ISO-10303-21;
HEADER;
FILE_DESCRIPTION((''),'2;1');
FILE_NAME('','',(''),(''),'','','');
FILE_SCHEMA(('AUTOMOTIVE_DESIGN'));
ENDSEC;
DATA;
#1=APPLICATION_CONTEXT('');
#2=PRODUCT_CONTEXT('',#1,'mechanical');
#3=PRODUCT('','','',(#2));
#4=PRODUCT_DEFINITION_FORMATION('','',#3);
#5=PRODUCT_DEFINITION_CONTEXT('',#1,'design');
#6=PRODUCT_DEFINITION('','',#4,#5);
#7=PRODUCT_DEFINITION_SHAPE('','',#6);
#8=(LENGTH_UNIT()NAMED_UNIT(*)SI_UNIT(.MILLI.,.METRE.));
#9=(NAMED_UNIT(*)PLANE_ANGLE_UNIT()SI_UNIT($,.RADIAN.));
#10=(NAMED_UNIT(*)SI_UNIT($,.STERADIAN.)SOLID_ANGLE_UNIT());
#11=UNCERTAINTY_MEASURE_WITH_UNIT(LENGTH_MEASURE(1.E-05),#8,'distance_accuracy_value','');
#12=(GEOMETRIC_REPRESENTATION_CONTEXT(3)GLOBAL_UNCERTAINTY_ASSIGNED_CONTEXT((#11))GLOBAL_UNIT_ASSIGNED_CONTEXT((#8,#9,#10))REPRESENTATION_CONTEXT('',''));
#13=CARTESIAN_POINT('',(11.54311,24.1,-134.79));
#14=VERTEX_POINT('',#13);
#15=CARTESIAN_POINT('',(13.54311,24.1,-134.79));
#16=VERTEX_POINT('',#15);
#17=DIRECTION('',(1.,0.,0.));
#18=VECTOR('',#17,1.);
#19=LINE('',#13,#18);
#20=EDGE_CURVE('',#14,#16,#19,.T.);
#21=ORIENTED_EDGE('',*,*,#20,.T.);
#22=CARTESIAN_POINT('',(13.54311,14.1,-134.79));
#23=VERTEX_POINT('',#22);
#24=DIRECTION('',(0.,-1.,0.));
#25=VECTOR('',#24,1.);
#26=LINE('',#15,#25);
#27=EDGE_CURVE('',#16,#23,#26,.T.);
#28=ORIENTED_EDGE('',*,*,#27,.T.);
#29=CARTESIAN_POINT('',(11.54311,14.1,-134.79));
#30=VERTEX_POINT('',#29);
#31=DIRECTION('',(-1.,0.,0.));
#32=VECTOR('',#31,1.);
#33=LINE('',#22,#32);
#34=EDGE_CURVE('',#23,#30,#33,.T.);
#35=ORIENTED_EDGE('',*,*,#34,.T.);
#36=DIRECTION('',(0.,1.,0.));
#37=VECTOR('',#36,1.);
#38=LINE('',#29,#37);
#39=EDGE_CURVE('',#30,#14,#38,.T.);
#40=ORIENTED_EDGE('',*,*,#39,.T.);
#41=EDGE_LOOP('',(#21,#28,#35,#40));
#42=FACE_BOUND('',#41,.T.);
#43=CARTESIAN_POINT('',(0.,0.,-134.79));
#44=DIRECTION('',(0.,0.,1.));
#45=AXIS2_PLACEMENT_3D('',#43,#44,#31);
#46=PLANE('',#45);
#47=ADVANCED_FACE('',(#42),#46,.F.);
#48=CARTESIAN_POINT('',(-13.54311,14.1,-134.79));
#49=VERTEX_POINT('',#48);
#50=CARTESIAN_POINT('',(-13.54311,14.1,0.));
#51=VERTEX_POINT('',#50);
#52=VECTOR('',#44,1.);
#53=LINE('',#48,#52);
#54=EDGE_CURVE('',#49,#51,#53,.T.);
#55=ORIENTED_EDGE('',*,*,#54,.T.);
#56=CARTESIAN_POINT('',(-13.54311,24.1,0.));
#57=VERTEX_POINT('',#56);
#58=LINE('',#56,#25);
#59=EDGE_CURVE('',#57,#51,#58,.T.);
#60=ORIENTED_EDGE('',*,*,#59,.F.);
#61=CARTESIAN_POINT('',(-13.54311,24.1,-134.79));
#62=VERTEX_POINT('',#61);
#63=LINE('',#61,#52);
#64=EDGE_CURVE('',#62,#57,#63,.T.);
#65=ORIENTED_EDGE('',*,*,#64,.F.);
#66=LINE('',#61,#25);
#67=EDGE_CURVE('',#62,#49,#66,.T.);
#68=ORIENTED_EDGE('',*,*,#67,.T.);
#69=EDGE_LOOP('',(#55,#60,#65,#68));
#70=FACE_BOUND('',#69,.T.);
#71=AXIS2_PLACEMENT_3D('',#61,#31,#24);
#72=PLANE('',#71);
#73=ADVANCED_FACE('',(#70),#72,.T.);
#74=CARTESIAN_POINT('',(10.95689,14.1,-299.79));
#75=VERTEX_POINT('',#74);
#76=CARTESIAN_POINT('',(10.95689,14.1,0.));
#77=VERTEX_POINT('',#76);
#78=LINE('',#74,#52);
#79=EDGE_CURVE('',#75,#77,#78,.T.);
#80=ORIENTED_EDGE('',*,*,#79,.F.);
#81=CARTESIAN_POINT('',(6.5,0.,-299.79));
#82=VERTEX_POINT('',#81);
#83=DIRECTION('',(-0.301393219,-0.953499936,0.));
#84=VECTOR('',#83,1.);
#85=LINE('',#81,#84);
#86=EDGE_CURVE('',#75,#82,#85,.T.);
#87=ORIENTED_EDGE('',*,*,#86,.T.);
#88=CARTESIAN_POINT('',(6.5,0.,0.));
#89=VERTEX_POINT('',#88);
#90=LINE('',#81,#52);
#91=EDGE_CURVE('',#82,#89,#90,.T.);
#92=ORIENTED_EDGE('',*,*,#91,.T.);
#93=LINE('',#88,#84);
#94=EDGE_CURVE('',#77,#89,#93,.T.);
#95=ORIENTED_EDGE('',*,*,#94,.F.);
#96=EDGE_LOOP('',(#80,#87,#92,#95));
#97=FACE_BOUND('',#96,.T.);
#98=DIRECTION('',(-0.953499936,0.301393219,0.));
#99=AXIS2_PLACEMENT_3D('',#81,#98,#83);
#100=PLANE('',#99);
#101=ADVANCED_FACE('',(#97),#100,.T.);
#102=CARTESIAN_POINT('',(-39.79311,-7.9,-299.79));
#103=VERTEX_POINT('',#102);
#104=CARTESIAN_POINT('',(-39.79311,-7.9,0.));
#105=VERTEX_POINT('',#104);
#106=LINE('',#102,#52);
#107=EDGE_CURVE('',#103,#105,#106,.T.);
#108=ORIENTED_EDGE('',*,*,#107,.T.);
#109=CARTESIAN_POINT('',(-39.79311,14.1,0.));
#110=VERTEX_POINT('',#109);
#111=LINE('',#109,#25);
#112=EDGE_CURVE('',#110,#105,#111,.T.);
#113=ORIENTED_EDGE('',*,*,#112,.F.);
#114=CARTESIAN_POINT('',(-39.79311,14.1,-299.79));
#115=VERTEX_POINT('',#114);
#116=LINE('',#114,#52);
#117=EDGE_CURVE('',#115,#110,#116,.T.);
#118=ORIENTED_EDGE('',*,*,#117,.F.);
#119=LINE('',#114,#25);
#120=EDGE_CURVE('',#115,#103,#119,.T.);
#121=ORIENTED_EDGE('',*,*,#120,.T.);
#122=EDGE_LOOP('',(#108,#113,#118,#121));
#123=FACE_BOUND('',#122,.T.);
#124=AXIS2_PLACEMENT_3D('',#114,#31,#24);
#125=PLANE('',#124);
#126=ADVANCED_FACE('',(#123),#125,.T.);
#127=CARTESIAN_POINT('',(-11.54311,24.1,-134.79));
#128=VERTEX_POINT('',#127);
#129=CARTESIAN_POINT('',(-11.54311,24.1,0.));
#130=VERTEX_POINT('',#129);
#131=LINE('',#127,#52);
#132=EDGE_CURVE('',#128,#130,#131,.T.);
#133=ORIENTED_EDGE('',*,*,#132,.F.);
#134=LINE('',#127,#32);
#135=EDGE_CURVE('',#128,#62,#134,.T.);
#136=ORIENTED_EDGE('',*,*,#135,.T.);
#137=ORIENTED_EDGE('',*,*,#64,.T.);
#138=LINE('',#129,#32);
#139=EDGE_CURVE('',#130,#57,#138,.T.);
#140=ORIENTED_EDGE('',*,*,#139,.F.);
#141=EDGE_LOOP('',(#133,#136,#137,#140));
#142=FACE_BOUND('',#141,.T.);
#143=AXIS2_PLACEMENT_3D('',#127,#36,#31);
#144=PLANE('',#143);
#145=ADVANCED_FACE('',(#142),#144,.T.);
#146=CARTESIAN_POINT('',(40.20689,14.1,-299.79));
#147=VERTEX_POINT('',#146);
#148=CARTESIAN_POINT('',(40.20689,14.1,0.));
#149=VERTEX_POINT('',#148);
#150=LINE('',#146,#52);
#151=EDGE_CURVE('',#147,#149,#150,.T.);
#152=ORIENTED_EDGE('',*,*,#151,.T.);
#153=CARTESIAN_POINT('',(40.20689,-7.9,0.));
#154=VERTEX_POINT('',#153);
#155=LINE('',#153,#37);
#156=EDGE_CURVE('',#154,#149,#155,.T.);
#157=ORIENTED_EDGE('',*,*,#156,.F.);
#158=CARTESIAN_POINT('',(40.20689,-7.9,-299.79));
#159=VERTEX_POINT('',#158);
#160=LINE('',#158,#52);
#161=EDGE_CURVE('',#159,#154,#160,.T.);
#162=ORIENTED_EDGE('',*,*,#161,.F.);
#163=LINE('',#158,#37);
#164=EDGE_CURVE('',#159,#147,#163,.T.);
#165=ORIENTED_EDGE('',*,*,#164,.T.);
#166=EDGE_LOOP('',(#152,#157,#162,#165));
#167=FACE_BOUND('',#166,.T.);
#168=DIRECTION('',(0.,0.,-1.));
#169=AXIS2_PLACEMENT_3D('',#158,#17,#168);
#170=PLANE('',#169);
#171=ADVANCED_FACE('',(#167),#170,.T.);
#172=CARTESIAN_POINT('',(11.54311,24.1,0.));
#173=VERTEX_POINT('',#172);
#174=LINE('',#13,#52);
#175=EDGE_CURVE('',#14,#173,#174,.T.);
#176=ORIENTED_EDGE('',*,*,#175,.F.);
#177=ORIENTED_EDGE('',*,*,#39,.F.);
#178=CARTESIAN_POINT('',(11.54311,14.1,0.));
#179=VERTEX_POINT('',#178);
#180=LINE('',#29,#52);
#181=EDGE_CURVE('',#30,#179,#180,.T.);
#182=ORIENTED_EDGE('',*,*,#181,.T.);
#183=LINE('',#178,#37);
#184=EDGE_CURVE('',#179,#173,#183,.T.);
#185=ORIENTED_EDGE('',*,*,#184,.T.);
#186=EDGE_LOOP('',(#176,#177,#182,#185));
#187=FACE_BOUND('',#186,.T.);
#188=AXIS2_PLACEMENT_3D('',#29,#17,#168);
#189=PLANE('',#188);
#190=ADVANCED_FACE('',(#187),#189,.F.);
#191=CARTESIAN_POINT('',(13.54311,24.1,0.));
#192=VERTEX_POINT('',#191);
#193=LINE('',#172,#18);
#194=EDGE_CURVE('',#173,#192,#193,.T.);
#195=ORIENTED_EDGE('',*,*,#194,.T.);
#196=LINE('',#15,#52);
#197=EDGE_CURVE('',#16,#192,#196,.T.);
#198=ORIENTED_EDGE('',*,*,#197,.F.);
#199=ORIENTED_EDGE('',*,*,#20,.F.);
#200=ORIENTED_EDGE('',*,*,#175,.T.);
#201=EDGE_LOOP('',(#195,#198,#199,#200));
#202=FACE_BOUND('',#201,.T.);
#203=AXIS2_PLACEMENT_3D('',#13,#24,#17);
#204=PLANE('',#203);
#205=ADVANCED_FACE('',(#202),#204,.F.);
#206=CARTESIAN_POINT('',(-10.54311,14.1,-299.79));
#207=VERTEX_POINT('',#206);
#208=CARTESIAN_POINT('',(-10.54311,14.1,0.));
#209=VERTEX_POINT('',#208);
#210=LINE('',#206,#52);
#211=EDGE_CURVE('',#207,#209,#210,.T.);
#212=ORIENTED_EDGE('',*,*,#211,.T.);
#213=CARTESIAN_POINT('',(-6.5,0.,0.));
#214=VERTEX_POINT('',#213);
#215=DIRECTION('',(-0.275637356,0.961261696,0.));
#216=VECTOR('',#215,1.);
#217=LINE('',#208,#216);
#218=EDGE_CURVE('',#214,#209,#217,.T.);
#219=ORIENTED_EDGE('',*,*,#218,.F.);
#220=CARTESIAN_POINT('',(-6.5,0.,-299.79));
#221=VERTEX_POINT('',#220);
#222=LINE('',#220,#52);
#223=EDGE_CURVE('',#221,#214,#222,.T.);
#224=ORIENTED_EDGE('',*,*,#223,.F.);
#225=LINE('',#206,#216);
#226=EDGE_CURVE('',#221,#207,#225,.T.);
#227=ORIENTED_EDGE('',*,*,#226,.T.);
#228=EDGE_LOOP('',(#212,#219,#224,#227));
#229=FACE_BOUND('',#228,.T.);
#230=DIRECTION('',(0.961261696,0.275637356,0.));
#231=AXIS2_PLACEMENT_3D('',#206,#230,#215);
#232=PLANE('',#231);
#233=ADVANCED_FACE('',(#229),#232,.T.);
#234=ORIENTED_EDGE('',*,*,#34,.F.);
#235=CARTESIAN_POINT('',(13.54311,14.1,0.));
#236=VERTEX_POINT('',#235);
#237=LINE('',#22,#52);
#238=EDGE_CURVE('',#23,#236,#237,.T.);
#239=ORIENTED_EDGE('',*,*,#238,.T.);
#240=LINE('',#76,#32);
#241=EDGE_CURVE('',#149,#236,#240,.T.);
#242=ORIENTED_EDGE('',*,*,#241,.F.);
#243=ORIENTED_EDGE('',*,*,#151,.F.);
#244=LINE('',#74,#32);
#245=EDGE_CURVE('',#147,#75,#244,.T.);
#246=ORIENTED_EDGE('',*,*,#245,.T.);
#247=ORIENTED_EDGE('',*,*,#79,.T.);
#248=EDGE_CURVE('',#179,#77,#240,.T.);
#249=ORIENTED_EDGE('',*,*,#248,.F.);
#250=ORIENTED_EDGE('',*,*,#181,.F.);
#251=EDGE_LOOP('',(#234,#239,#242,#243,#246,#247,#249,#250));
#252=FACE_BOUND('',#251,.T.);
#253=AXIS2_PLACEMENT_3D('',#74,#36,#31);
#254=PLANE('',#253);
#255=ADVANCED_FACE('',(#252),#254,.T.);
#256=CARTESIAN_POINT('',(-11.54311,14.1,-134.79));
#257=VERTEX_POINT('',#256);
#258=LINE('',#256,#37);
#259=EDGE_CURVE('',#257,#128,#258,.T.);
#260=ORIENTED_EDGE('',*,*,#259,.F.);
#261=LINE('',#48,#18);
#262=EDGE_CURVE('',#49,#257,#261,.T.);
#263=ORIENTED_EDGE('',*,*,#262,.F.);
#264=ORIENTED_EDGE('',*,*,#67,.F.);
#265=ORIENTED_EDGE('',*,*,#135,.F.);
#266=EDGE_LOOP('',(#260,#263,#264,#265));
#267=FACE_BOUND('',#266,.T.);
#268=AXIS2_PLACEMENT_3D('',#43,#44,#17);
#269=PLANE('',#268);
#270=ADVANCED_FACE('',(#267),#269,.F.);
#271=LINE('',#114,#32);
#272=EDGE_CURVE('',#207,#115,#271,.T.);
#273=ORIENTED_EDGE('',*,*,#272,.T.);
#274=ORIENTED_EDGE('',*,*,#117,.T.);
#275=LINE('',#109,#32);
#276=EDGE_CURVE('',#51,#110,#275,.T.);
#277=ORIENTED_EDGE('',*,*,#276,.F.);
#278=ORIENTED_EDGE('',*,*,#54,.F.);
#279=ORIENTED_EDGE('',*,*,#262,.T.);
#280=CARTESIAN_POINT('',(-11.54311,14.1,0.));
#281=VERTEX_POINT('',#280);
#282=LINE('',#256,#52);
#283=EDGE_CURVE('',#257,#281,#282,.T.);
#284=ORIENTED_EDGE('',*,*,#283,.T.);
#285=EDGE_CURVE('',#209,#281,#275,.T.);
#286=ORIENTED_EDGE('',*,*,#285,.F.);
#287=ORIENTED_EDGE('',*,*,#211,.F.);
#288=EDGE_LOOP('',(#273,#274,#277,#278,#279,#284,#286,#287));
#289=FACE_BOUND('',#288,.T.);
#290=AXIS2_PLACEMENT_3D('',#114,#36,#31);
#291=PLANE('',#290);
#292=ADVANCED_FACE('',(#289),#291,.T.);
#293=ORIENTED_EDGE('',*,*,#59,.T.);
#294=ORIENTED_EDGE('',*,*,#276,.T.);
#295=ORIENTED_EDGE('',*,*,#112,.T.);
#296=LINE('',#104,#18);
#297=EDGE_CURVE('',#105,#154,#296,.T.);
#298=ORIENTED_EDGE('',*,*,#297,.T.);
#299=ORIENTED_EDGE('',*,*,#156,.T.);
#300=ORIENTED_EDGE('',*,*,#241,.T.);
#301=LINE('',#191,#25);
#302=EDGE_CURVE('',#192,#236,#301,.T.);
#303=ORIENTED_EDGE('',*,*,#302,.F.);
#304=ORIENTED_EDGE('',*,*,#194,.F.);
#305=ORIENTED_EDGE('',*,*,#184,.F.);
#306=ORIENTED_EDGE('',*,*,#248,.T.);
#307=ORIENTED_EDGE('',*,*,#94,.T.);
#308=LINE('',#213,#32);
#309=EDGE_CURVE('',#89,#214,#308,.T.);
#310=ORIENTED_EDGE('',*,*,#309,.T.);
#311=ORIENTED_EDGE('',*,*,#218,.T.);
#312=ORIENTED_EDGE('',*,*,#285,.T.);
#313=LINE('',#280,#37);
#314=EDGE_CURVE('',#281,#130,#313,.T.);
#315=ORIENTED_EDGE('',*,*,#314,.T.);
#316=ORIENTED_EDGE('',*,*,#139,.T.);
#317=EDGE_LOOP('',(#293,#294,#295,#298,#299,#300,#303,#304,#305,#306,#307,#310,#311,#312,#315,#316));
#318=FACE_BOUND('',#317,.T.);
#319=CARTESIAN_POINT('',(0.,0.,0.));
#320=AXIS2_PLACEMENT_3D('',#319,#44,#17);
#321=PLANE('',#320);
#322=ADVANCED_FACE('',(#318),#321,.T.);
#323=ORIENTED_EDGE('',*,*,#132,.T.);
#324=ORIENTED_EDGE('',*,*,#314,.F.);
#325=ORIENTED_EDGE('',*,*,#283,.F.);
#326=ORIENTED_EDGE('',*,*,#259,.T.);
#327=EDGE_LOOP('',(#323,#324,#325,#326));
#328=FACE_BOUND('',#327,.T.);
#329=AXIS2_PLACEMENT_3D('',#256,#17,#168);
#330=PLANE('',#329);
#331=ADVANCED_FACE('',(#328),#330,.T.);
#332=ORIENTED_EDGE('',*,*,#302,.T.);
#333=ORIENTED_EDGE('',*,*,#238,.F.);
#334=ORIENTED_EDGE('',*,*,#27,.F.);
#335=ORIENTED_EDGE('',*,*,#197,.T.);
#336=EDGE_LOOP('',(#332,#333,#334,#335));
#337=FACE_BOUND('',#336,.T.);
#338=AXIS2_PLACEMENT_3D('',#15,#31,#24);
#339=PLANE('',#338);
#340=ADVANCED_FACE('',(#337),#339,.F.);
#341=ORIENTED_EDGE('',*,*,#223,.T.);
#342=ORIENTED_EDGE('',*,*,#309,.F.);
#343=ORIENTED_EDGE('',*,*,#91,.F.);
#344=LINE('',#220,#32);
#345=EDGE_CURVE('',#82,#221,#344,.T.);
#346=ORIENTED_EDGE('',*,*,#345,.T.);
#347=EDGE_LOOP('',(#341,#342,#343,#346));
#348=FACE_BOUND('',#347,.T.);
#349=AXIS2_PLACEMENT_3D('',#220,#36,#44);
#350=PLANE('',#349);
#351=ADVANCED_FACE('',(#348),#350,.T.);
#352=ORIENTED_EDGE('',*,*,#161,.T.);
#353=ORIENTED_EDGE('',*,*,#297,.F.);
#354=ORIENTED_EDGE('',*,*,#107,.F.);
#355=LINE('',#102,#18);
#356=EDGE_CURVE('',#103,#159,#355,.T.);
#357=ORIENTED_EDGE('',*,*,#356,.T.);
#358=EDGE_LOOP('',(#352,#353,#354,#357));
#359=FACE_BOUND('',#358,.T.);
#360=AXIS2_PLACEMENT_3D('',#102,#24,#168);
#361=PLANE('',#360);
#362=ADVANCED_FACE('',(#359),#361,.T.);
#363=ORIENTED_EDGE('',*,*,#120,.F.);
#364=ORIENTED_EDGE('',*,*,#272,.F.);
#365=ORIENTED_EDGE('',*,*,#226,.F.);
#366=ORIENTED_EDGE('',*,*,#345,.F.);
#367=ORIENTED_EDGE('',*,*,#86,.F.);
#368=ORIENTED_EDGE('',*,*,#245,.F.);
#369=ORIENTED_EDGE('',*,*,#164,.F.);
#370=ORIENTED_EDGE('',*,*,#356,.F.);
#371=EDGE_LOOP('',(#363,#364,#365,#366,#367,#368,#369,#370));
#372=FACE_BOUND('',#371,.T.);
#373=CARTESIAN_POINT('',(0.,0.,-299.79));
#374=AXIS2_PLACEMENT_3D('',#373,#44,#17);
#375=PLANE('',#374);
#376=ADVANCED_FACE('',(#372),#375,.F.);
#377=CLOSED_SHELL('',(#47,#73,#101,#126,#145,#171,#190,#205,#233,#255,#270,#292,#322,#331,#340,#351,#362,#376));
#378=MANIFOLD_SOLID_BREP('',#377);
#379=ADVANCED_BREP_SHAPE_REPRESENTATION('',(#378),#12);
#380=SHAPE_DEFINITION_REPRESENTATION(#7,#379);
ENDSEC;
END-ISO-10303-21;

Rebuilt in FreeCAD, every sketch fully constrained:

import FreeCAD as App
import Part
import Sketcher

V = App.Vector
Q = App.Units.Quantity

doc = App.newDocument("Part")
params = doc.addObject("Spreadsheet::Sheet", "Params")
for row, (alias, value) in enumerate([
    ("sketch1_width", "13 mm"),
    ("sketch1_width2", "80 mm"),
    ("sketch1_height", "22 mm"),
    ("sketch1_width3", "29.25 mm"),
    ("pad1_length", "299.79 mm"),
    ("sketch2_width", "2 mm"),
    ("sketch2_height", "10 mm"),
    ("pad2_length", "134.79 mm"),
], start=1):
    params.set(f"A{row}", alias)
    params.set(f"B{row}", "=" + value)
    params.setAlias(f"B{row}", alias)

body = doc.addObject("PartDesign::Body", "Body")

# Sketch on XY plane
sketch1 = doc.addObject("Sketcher::SketchObject", "Sketch")
body.addObject(sketch1)
sketch1.AttachmentSupport = (doc.XY_Plane, [""])
sketch1.MapMode = "FlatFace"
sketch1.addGeometry(Part.LineSegment(V(6, 0, 0), V(-6, 0, 0)), False)
sketch1.addGeometry(Part.LineSegment(V(-6, 0, 0), V(-11, 14, 0)), False)
sketch1.addGeometry(Part.LineSegment(V(-11, 14, 0), V(-40, 14, 0)), False)
sketch1.addGeometry(Part.LineSegment(V(-40, 14, 0), V(-40, -8, 0)), False)
sketch1.addGeometry(Part.LineSegment(V(-40, -8, 0), V(40, -8, 0)), False)
sketch1.addGeometry(Part.LineSegment(V(40, -8, 0), V(40, 14, 0)), False)
sketch1.addGeometry(Part.LineSegment(V(40, 14, 0), V(11, 14, 0)), False)
sketch1.addGeometry(Part.LineSegment(V(11, 14, 0), V(6, 0, 0)), False)
sketch1.addConstraint(Sketcher.Constraint("Coincident", 0, 2, 1, 1))
sketch1.addConstraint(Sketcher.Constraint("Coincident", 1, 2, 2, 1))
sketch1.addConstraint(Sketcher.Constraint("Coincident", 2, 2, 3, 1))
sketch1.addConstraint(Sketcher.Constraint("Coincident", 3, 2, 4, 1))
sketch1.addConstraint(Sketcher.Constraint("Coincident", 4, 2, 5, 1))
sketch1.addConstraint(Sketcher.Constraint("Coincident", 5, 2, 6, 1))
sketch1.addConstraint(Sketcher.Constraint("Coincident", 6, 2, 7, 1))
sketch1.addConstraint(Sketcher.Constraint("Coincident", 7, 2, 0, 1))
sketch1.addConstraint(Sketcher.Constraint("Horizontal", 0))
sketch1.addConstraint(Sketcher.Constraint("Horizontal", 2))
sketch1.addConstraint(Sketcher.Constraint("Vertical", 3))
sketch1.addConstraint(Sketcher.Constraint("Horizontal", 4))
sketch1.addConstraint(Sketcher.Constraint("Vertical", 5))
sketch1.addConstraint(Sketcher.Constraint("Horizontal", 6))
sketch1.addConstraint(Sketcher.Constraint("Symmetric", 0, 2, 7, 2, -1, 1))
sketch1.addConstraint(Sketcher.Constraint("Horizontal", 2, 2, 5, 2))
sketch1.addConstraint(Sketcher.Constraint("Equal", 2, 6))
sketch1.addConstraint(Sketcher.Constraint("DistanceX", 0, 2, 0, 1, 13.0))
sketch1.addConstraint(Sketcher.Constraint("DistanceX", 4, 1, 4, 2, 80.0))
sketch1.addConstraint(Sketcher.Constraint("DistanceY", 3, 2, 3, 1, 22.0))
sketch1.addConstraint(Sketcher.Constraint("Angle", 1, Q("106 deg")))
sketch1.addConstraint(Sketcher.Constraint("DistanceX", 2, 2, 2, 1, 29.25))
sketch1.addConstraint(Sketcher.Constraint("DistanceY", -1, 1, 1, 2, 14.1))
sketch1.setExpression("Constraints[17]", "Params.sketch1_width")
sketch1.setExpression("Constraints[18]", "Params.sketch1_width2")
sketch1.setExpression("Constraints[19]", "Params.sketch1_height")
sketch1.setExpression("Constraints[21]", "Params.sketch1_width3")
pad1 = doc.addObject("PartDesign::Pad", "Pad")
body.addObject(pad1)
pad1.Profile = sketch1
pad1.setExpression("Length", "Params.pad1_length")
pad1.Reversed = True

# Sketch on XY plane
sketch2 = doc.addObject("Sketcher::SketchObject", "Sketch001")
body.addObject(sketch2)
sketch2.AttachmentSupport = (doc.XY_Plane, [""])
sketch2.MapMode = "FlatFace"
sketch2.addGeometry(Part.LineSegment(V(-13.5, 24.1, 0), V(-13.5, 14.1, 0)), False)
sketch2.addGeometry(Part.LineSegment(V(-13.5, 14.1, 0), V(-11.5, 14.1, 0)), False)
sketch2.addGeometry(Part.LineSegment(V(-11.5, 14.1, 0), V(-11.5, 24.1, 0)), False)
sketch2.addGeometry(Part.LineSegment(V(-11.5, 24.1, 0), V(-13.5, 24.1, 0)), False)
sketch2.addConstraint(Sketcher.Constraint("Coincident", 0, 2, 1, 1))
sketch2.addConstraint(Sketcher.Constraint("Coincident", 1, 2, 2, 1))
sketch2.addConstraint(Sketcher.Constraint("Coincident", 2, 2, 3, 1))
sketch2.addConstraint(Sketcher.Constraint("Coincident", 3, 2, 0, 1))
sketch2.addConstraint(Sketcher.Constraint("Vertical", 0))
sketch2.addConstraint(Sketcher.Constraint("Horizontal", 1))
sketch2.addConstraint(Sketcher.Constraint("Vertical", 2))
sketch2.addConstraint(Sketcher.Constraint("Horizontal", 3))
sketch2.addConstraint(Sketcher.Constraint("DistanceX", 1, 1, 1, 2, 2.0))
sketch2.addConstraint(Sketcher.Constraint("DistanceY", 0, 2, 0, 1, 10.0))
sketch2.addConstraint(Sketcher.Constraint("DistanceY", -1, 1, 0, 2, 14.1))
sketch2.addConstraint(Sketcher.Constraint("DistanceX", 0, 2, -1, 1, 13.54311))
sketch2.setExpression("Constraints[8]", "Params.sketch2_width")
sketch2.setExpression("Constraints[9]", "Params.sketch2_height")
pad2 = doc.addObject("PartDesign::Pad", "Pad001")
body.addObject(pad2)
pad2.Profile = sketch2
pad2.setExpression("Length", "Params.pad2_length")
pad2.Reversed = True
doc.recompute()

mirrored = doc.addObject("PartDesign::Mirrored", "Mirrored")
body.addObject(mirrored)
mirrored.Originals = [pad2]
mirrored.MirrorPlane = (doc.YZ_Plane, [""])
body.Tip = mirrored

doc.recompute()
